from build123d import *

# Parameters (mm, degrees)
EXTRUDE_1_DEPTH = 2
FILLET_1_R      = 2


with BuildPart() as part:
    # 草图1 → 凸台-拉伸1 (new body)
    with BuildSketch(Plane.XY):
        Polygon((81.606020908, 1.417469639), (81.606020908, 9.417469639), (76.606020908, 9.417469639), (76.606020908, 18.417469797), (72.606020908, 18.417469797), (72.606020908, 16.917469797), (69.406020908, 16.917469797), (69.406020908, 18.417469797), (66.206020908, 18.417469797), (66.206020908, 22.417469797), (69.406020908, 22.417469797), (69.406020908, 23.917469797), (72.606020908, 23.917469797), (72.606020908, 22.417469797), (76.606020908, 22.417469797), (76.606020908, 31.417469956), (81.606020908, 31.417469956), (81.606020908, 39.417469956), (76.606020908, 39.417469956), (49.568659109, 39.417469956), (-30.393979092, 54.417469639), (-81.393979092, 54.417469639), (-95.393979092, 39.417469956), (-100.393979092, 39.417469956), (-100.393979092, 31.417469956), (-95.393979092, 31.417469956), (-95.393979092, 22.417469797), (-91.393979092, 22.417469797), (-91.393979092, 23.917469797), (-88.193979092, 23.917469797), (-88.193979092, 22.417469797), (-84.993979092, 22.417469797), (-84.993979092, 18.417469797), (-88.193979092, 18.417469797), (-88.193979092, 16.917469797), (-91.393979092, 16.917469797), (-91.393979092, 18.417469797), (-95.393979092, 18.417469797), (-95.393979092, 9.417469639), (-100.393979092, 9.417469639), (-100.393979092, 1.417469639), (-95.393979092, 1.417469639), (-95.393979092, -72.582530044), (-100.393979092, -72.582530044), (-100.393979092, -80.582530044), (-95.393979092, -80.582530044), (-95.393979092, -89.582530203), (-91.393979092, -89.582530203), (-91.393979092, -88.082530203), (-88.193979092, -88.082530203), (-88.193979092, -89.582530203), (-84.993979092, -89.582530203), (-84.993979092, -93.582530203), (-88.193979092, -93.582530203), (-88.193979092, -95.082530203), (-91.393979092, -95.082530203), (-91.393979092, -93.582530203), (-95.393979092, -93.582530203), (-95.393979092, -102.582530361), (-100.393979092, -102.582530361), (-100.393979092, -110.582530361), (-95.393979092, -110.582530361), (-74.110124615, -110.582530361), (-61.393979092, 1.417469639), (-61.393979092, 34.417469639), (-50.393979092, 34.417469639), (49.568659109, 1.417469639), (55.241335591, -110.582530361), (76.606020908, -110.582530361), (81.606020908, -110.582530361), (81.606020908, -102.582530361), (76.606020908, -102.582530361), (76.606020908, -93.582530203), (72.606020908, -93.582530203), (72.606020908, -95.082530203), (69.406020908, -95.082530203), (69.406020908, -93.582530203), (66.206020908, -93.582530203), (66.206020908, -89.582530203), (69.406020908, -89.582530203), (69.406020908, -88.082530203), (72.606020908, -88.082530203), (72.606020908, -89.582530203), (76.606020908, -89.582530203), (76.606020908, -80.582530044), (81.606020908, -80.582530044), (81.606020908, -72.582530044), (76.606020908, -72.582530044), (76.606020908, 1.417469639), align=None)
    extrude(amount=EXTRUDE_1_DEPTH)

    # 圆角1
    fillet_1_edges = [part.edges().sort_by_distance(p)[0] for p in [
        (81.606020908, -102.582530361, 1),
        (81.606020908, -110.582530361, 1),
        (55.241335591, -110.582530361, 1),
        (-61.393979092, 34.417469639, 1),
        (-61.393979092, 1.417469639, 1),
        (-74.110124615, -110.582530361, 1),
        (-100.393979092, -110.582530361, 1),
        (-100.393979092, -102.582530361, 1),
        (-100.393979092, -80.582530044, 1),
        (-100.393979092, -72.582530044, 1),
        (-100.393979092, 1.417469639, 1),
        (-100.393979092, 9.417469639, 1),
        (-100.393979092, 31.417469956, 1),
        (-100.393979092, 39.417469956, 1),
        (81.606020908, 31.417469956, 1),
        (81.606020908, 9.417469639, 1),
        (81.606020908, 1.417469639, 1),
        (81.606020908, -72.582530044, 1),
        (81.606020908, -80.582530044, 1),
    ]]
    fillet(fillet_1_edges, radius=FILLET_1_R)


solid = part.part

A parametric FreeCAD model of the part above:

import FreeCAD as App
import Part
import Sketcher
from FreeCAD import Vector
Q = App.Units.Quantity


def edges_at(feature, points):
    """Names of the edges that pass closest to the given points."""
    edges = feature.Shape.Edges
    near = lambda p: min(range(len(edges)), key=lambda i: edges[i].distToShape(Part.Vertex(*p))[0])
    return sorted({f"Edge{near(p) + 1}" for p in points})


def add_polygon(sketch, points):
    """Adds a closed chain of lines whose ends are joined by coincident constraints."""
    first, n = sketch.GeometryCount, len(points)
    for a, b in zip(points, points[1:] + points[:1]):
        sketch.addGeometry(Part.LineSegment(App.Vector(*a, 0), App.Vector(*b, 0)), False)
    for i in range(n):
        sketch.addConstraint(Sketcher.Constraint("Coincident", first + i, 2, first + (i + 1) % n, 1))

doc = App.newDocument("Part")
params = doc.addObject("Spreadsheet::Sheet", "Params")
for row, (alias, value) in enumerate([
    ("sketch1_width", "5 mm"),
    ("sketch1_width2", "4 mm"),
    ("sketch1_width3", "51 mm"),
    ("sketch1_width4", "11 mm"),
    ("sketch1_height", "8 mm"),
    ("pad1_length", "2 mm"),
    ("fillet_radius", "2 mm"),
], start=1):
    params.set(f"A{row}", alias)
    params.set(f"B{row}", "=" + value)
    params.setAlias(f"B{row}", alias)

body = doc.addObject("PartDesign::Body", "Body")

sketch1 = body.newObject("Sketcher::SketchObject", "Sketch")
sketch1.AttachmentSupport = (doc.getObject("XY_Plane"), [""])
sketch1.MapMode = "FlatFace"
add_polygon(sketch1, [(81.6, 1.4), (81.6, 9.4), (76.6, 9.4), (76.6, 18.4), (72.6, 18.4), (72.6, 16.9), (69.4, 16.9), (69.4, 18.4), (66.2, 18.4), (66.2, 22.4), (69.4, 22.4), (69.4, 23.9), (72.6, 23.9), (72.6, 22.4), (76.6, 22.4), (76.6, 31.4), (81.6, 31.4), (81.6, 39.4), (49.6, 39.4), (-30.4, 54.4), (-81.4, 54.4), (-95.4, 39.4), (-100.4, 39.4), (-100.4, 31.4), (-95.4, 31.4), (-95.4, 22.4), (-91.4, 22.4), (-91.4, 23.9), (-88.2, 23.9), (-88.2, 22.4), (-85, 22.4), (-85, 18.4), (-88.2, 18.4), (-88.2, 16.9), (-91.4, 16.9), (-91.4, 18.4), (-95.4, 18.4), (-95.4, 9.4), (-100.4, 9.4), (-100.4, 1.4), (-95.4, 1.4), (-95.4, -72.6), (-100.4, -72.6), (-100.4, -80.6), (-95.4, -80.6), (-95.4, -89.6), (-91.4, -89.6), (-91.4, -88.1), (-88.2, -88.1), (-88.2, -89.6), (-85, -89.6), (-85, -93.6), (-88.2, -93.6), (-88.2, -95.1), (-91.4, -95.1), (-91.4, -93.6), (-95.4, -93.6), (-95.4, -102.6), (-100.4, -102.6), (-100.4, -110.6), (-74.1, -110.6), (-61.4, 1.4), (-61.4, 34.4), (-50.4, 34.4), (49.6, 1.4), (55.2, -110.6), (81.6, -110.6), (81.6, -102.6), (76.6, -102.6), (76.6, -93.6), (72.6, -93.6), (72.6, -95.1), (69.4, -95.1), (69.4, -93.6), (66.2, -93.6), (66.2, -89.6), (69.4, -89.6), (69.4, -88.1), (72.6, -88.1), (72.6, -89.6), (76.6, -89.6), (76.6, -80.6), (81.6, -80.6), (81.6, -72.6), (76.6, -72.6), (76.6, 1.4)])
sketch1.addConstraint([
    Sketcher.Constraint("Vertical", 0),
    Sketcher.Constraint("Horizontal", 1),
    Sketcher.Constraint("Vertical", 2),
    Sketcher.Constraint("Horizontal", 3),
    Sketcher.Constraint("Vertical", 4),
    Sketcher.Constraint("Horizontal", 5),
    Sketcher.Constraint("Vertical", 6),
    Sketcher.Constraint("Horizontal", 7),
    Sketcher.Constraint("Vertical", 8),
    Sketcher.Constraint("Horizontal", 9),
    Sketcher.Constraint("Vertical", 10),
    Sketcher.Constraint("Horizontal", 11),
    Sketcher.Constraint("Vertical", 12),
    Sketcher.Constraint("Horizontal", 13),
    Sketcher.Constraint("Vertical", 14),
    Sketcher.Constraint("Horizontal", 15),
    Sketcher.Constraint("Vertical", 16),
    Sketcher.Constraint("Horizontal", 17),
    Sketcher.Constraint("Horizontal", 19),
    Sketcher.Constraint("Horizontal", 21),
    Sketcher.Constraint("Vertical", 22),
    Sketcher.Constraint("Horizontal", 23),
    Sketcher.Constraint("Vertical", 24),
    Sketcher.Constraint("Horizontal", 25),
    Sketcher.Constraint("Vertical", 26),
    Sketcher.Constraint("Horizontal", 27),
    Sketcher.Constraint("Vertical", 28),
    Sketcher.Constraint("Horizontal", 29),
    Sketcher.Constraint("Vertical", 30),
    Sketcher.Constraint("Horizontal", 31),
    Sketcher.Constraint("Vertical", 32),
    Sketcher.Constraint("Horizontal", 33),
    Sketcher.Constraint("Vertical", 34),
    Sketcher.Constraint("Horizontal", 35),
    Sketcher.Constraint("Vertical", 36),
    Sketcher.Constraint("Horizontal", 37),
    Sketcher.Constraint("Vertical", 38),
    Sketcher.Constraint("Horizontal", 39),
    Sketcher.Constraint("Vertical", 40),
    Sketcher.Constraint("Horizontal", 41),
    Sketcher.Constraint("Vertical", 42),
    Sketcher.Constraint("Horizontal", 43),
    Sketcher.Constraint("Vertical", 44),
    Sketcher.Constraint("Horizontal", 45),
    Sketcher.Constraint("Vertical", 46),
    Sketcher.Constraint("Horizontal", 47),
    Sketcher.Constraint("Vertical", 48),
    Sketcher.Constraint("Horizontal", 49),
    Sketcher.Constraint("Vertical", 50),
    Sketcher.Constraint("Horizontal", 51),
    Sketcher.Constraint("Vertical", 52),
    Sketcher.Constraint("Horizontal", 53),
    Sketcher.Constraint("Vertical", 54),
    Sketcher.Constraint("Horizontal", 55),
    Sketcher.Constraint("Vertical", 56),
    Sketcher.Constraint("Horizontal", 57),
    Sketcher.Constraint("Vertical", 58),
    Sketcher.Constraint("Horizontal", 59),
    Sketcher.Constraint("Vertical", 61),
    Sketcher.Constraint("Horizontal", 62),
    Sketcher.Constraint("Horizontal", 65),
    Sketcher.Constraint("Vertical", 66),
    Sketcher.Constraint("Horizontal", 67),
    Sketcher.Constraint("Vertical", 68),
    Sketcher.Constraint("Horizontal", 69),
    Sketcher.Constraint("Vertical", 70),
    Sketcher.Constraint("Horizontal", 71),
    Sketcher.Constraint("Vertical", 72),
    Sketcher.Constraint("Horizontal", 73),
    Sketcher.Constraint("Vertical", 74),
    Sketcher.Constraint("Horizontal", 75),
    Sketcher.Constraint("Vertical", 76),
    Sketcher.Constraint("Horizontal", 77),
    Sketcher.Constraint("Vertical", 78),
    Sketcher.Constraint("Horizontal", 79),
    Sketcher.Constraint("Vertical", 80),
    Sketcher.Constraint("Horizontal", 81),
    Sketcher.Constraint("Vertical", 82),
    Sketcher.Constraint("Horizontal", 83),
    Sketcher.Constraint("Vertical", 84),
    Sketcher.Constraint("Horizontal", 85),
    Sketcher.Constraint("Horizontal", 3, 2, 6, 2),
    Sketcher.Constraint("Horizontal", 9, 2, 12, 2),
    Sketcher.Constraint("Horizontal", 17, 2, 20, 2),
    Sketcher.Constraint("Horizontal", 15, 2, 22, 2),
    Sketcher.Constraint("Horizontal", 13, 2, 24, 2),
    Sketcher.Constraint("Horizontal", 11, 2, 26, 2),
    Sketcher.Constraint("Horizontal", 25, 2, 28, 2),
    Sketcher.Constraint("Horizontal", 7, 2, 30, 2),
    Sketcher.Constraint("Horizontal", 5, 2, 32, 2),
    Sketcher.Constraint("Horizontal", 31, 2, 34, 2),
    Sketcher.Constraint("Horizontal", 1, 2, 36, 2),
    Sketcher.Constraint("Horizontal", 45, 2, 48, 2),
    Sketcher.Constraint("Horizontal", 51, 2, 54, 2),
    Sketcher.Constraint("Horizontal", 39, 2, 60, 2),
    Sketcher.Constraint("Horizontal", 60, 2, 63, 2),
    Sketcher.Constraint("Horizontal", 59, 2, 64, 2),
    Sketcher.Constraint("Horizontal", 57, 2, 66, 2),
    Sketcher.Constraint("Horizontal", 55, 2, 68, 2),
    Sketcher.Constraint("Horizontal", 53, 2, 70, 2),
    Sketcher.Constraint("Horizontal", 69, 2, 72, 2),
    Sketcher.Constraint("Horizontal", 49, 2, 74, 2),
    Sketcher.Constraint("Horizontal", 47, 2, 76, 2),
    Sketcher.Constraint("Horizontal", 75, 2, 78, 2),
    Sketcher.Constraint("Horizontal", 43, 2, 80, 2),
    Sketcher.Constraint("Horizontal", 41, 2, 82, 2),
    Sketcher.Constraint("Horizontal", 63, 2, 84, 2),
    Sketcher.Constraint("Vertical", 6, 2, 9, 2),
    Sketcher.Constraint("Vertical", 4, 2, 11, 2),
    Sketcher.Constraint("Vertical", 2, 2, 13, 2),
    Sketcher.Constraint("Vertical", 0, 2, 15, 2),
    Sketcher.Constraint("Vertical", 20, 2, 23, 2),
    Sketcher.Constraint("Vertical", 28, 2, 31, 2),
    Sketcher.Constraint("Vertical", 26, 2, 33, 2),
    Sketcher.Constraint("Vertical", 24, 2, 35, 2),
    Sketcher.Constraint("Vertical", 22, 2, 37, 2),
    Sketcher.Constraint("Vertical", 36, 2, 39, 2),
    Sketcher.Constraint("Vertical", 38, 2, 41, 2),
    Sketcher.Constraint("Vertical", 40, 2, 43, 2),
    Sketcher.Constraint("Vertical", 34, 2, 45, 2),
    Sketcher.Constraint("Vertical", 32, 2, 47, 2),
    Sketcher.Constraint("Vertical", 30, 2, 49, 2),
    Sketcher.Constraint("Vertical", 48, 2, 51, 2),
    Sketcher.Constraint("Vertical", 46, 2, 53, 2),
    Sketcher.Constraint("Vertical", 44, 2, 55, 2),
    Sketcher.Constraint("Vertical", 42, 2, 57, 2),
    Sketcher.Constraint("Vertical", 17, 2, 63, 2),
    Sketcher.Constraint("Vertical", 16, 2, 65, 2),
    Sketcher.Constraint("Vertical", 14, 2, 67, 2),
    Sketcher.Constraint("Vertical", 12, 2, 69, 2),
    Sketcher.Constraint("Vertical", 10, 2, 71, 2),
    Sketcher.Constraint("Vertical", 8, 2, 73, 2),
    Sketcher.Constraint("Vertical", 72, 2, 75, 2),
    Sketcher.Constraint("Vertical", 70, 2, 77, 2),
    Sketcher.Constraint("Vertical", 68, 2, 79, 2),
    Sketcher.Constraint("Vertical", 66, 2, 81, 2),
    Sketcher.Constraint("Vertical", 80, 2, 83, 2),
    Sketcher.Constraint("Equal", 5, 7),
    Sketcher.Constraint("Equal", 15, 21),
    Sketcher.Constraint("Equal", 13, 25),
    Sketcher.Constraint("Equal", 11, 27),
    Sketcher.Constraint("Equal", 27, 29),
    Sketcher.Constraint("Equal", 79, 8),
    Sketcher.Constraint("Equal", 6, 10),
    Sketcher.Constraint("Equal", 2, 14),
    Sketcher.Constraint("Equal", 0, 16),
    Sketcher.Constraint("Equal", 38, 42),
    Sketcher.Constraint("Equal", 36, 44),
    Sketcher.Constraint("Equal", 34, 46),
    Sketcher.Constraint("Equal", 30, 50),
    Sketcher.Constraint("Equal", 48, 52),
    Sketcher.Constraint("Equal", 44, 56),
    Sketcher.Constraint("Equal", 42, 58),
    Sketcher.Constraint("DistanceX", 1, 2, 1, 1, Q("5 mm")),
    Sketcher.Constraint("DistanceX", 3, 2, 3, 1, Q("4 mm")),
    Sketcher.Constraint("DistanceX", 19, 2, 19, 1, Q("51 mm")),
    Sketcher.Constraint("DistanceX", 62, 1, 62, 2, Q("11 mm")),
    Sketcher.Constraint("DistanceY", 0, 1, 0, 2, Q("8 mm")),
    Sketcher.Constraint("DistanceY", 2, 1, 2, 2, Q("9 mm")),
    Sketcher.Constraint("DistanceY", 40, 2, 40, 1, Q("74 mm")),
    Sketcher.Constraint("DistanceY", 61, 1, 61, 2, Q("33 mm")),
    Sketcher.Constraint("DistanceX", 5, 2, 5, 1, Q("3.2 mm")),
    Sketcher.Constraint("DistanceY", 4, 2, 4, 1, Q("1.5 mm")),
    Sketcher.Constraint("DistanceX", 17, 2, 17, 1, Q("32.037362 mm")),
    Sketcher.Constraint("Distance", 18, Q("81.357381 mm")),
    Sketcher.Constraint("Distance", 63, Q("105.268842 mm")),
    Sketcher.Constraint("DistanceX", 59, 1, 59, 2, Q("26.283854 mm")),
    Sketcher.Constraint("DistanceX", 65, 1, 65, 2, Q("26.364685 mm")),
    Sketcher.Constraint("DistanceX", -1, 1, 0, 2, Q("81.606021 mm")),
    Sketcher.Constraint("DistanceY", -1, 1, 0, 2, Q("9.41747 mm")),
    Sketcher.Constraint("DistanceX", 18, 2, -1, 1, Q("30.393979 mm")),
    Sketcher.Constraint("DistanceX", 20, 2, -1, 1, Q("95.393979 mm")),
])
sketch1.setExpression("Constraints[239]", "Params.sketch1_width")
sketch1.setExpression("Constraints[240]", "Params.sketch1_width2")
sketch1.setExpression("Constraints[241]", "Params.sketch1_width3")
sketch1.setExpression("Constraints[242]", "Params.sketch1_width4")
sketch1.setExpression("Constraints[243]", "Params.sketch1_height")
pad1 = body.newObject("PartDesign::Pad", "Pad")
pad1.Profile = sketch1
pad1.setExpression("Length", "Params.pad1_length")
doc.recompute()

fillet = body.newObject("PartDesign::Fillet", "Fillet")
fillet.Base = (pad1, edges_at(pad1, [
    (81.606, -102.583, 1),
    (81.606, -110.583, 1),
    (55.241, -110.583, 1),
    (-61.394, 34.417, 1),
    (-61.394, 1.417, 1),
    (-74.11, -110.583, 1),
    (-100.394, -110.583, 1),
    (-100.394, -102.583, 1),
    (-100.394, -80.583, 1),
    (-100.394, -72.583, 1),
    (-100.394, 1.417, 1),
    (-100.394, 9.417, 1),
    (-100.394, 31.417, 1),
    (-100.394, 39.417, 1),
    (81.606, 31.417, 1),
    (81.606, 9.417, 1),
    (81.606, 1.417, 1),
    (81.606, -72.583, 1),
    (81.606, -80.583, 1),
]))
fillet.setExpression("Radius", "Params.fillet_radius")

doc.recompute()
